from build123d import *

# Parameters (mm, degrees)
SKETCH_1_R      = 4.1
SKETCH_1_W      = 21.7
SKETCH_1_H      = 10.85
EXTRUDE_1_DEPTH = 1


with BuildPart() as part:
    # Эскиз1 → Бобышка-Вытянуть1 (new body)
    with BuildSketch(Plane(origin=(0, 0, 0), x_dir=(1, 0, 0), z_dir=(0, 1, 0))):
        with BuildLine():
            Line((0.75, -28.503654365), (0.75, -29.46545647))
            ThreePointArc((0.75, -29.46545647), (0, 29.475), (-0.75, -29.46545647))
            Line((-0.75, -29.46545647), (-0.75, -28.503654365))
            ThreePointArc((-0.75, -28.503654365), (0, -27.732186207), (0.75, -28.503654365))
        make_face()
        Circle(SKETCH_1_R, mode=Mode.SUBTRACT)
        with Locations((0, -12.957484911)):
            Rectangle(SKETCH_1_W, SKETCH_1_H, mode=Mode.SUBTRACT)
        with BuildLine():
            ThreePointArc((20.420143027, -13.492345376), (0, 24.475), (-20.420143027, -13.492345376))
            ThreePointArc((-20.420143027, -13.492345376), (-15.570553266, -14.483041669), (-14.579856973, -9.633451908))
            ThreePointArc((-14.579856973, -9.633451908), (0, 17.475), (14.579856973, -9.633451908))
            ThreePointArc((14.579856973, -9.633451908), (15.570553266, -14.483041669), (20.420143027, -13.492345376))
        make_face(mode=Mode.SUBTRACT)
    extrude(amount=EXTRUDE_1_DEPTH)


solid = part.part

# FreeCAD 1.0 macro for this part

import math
import FreeCAD as App
import Part
import Sketcher

doc = App.newDocument("Part")
body = doc.addObject("PartDesign::Body", "Body")

# Sketch on XZ plane
sketch1 = body.newObject("Sketcher::SketchObject", "Sketch")
sketch1.AttachmentSupport = (doc.getObject("XZ_Plane"), [""])
sketch1.MapMode = "FlatFace"
sketch1.addGeometry([
    Part.LineSegment(App.Vector(0.8, 28.5, 0), App.Vector(0.8, 29.5, 0)),  # 0
    Part.ArcOfCircle(Part.Circle(App.Vector(0, 0, 0), App.Vector(0, 0, 1), 29.5), math.radians(91), math.radians(449)),  # 1
    Part.LineSegment(App.Vector(-0.8, 29.5, 0), App.Vector(-0.8, 28.5, 0)),  # 2
    Part.ArcOfCircle(Part.Circle(App.Vector(0, 28.5, 0), App.Vector(0, 0, 1), 0.8), math.radians(178), math.radians(362)),  # 3
    Part.LineSegment(App.Vector(10.8, 18.4, 0), App.Vector(-10.8, 18.4, 0)),  # 4
    Part.LineSegment(App.Vector(-10.8, 18.4, 0), App.Vector(-10.8, 7.5, 0)),  # 5
    Part.LineSegment(App.Vector(-10.8, 7.5, 0), App.Vector(10.8, 7.5, 0)),  # 6
    Part.LineSegment(App.Vector(10.8, 7.5, 0), App.Vector(10.8, 18.4, 0)),  # 7
    Part.Circle(App.Vector(0, 0, 0), App.Vector(0, 0, 1), 4.1),  # 8
    Part.ArcOfCircle(Part.Circle(App.Vector(0, 0, 0), App.Vector(0, 0, 1), 24.5), math.radians(147), math.radians(393)),  # 9
    Part.ArcOfCircle(Part.Circle(App.Vector(17.5, 11.6, 0), App.Vector(0, 0, 1), 3.5), math.radians(33), math.radians(213)),  # 10
    Part.ArcOfCircle(Part.Circle(App.Vector(0, 0, 0), App.Vector(0, 0, 1), 17.5), math.radians(147), math.radians(393)),  # 11
    Part.ArcOfCircle(Part.Circle(App.Vector(-17.5, 11.6, 0), App.Vector(0, 0, 1), 3.5), math.radians(-33), math.radians(147)),  # 12
], False)
sketch1.addConstraint([
    Sketcher.Constraint("Coincident", 0, 2, 1, 2),
    Sketcher.Constraint("Coincident", 1, 1, 2, 1),
    Sketcher.Constraint("Coincident", 2, 2, 3, 1),
    Sketcher.Constraint("Coincident", 3, 2, 0, 1),
    Sketcher.Constraint("Coincident", 4, 2, 5, 1),
    Sketcher.Constraint("Coincident", 5, 2, 6, 1),
    Sketcher.Constraint("Coincident", 6, 2, 7, 1),
    Sketcher.Constraint("Coincident", 7, 2, 4, 1),
    Sketcher.Constraint("Tangent", 9, 2, 10, 1),
    Sketcher.Constraint("Tangent", 10, 2, 11, 2),
    Sketcher.Constraint("Tangent", 11, 1, 12, 1),
    Sketcher.Constraint("Tangent", 12, 2, 9, 1),
    Sketcher.Constraint("Vertical", 0),
    Sketcher.Constraint("Vertical", 2),
    Sketcher.Constraint("Horizontal", 4),
    Sketcher.Constraint("Vertical", 5),
    Sketcher.Constraint("Horizontal", 6),
    Sketcher.Constraint("Vertical", 7),
    Sketcher.Constraint("Coincident", 1, 3, -1, 1),
    Sketcher.Constraint("Coincident", 8, 3, -1, 1),
    Sketcher.Constraint("Coincident", 9, 3, -1, 1),
    Sketcher.Constraint("Coincident", 11, 3, -1, 1),
    Sketcher.Constraint("Symmetric", 2, 2, 3, 2, -2),
    Sketcher.Constraint("Horizontal", 10, 3, 12, 3),
    Sketcher.Constraint("Diameter", 8, 8.2),
    Sketcher.Constraint("Radius", 10, 3.5),
    Sketcher.Constraint("DistanceX", 4, 2, 4, 1, 21.7),
    Sketcher.Constraint("Radius", 1, 29.475),
    Sketcher.Constraint("Radius", 9, 24.475),
    Sketcher.Constraint("DistanceY", 5, 2, 5, 1, 10.85),
    Sketcher.Constraint("DistanceX", -1, 1, 10, 3, 17.5),
    Sketcher.Constraint("Radius", 3, 0.750299),
    Sketcher.Constraint("DistanceX", 2, 2, 0, 2, 1.5),
    Sketcher.Constraint("DistanceX", 4, 2, 2, 2, 10.1),
    Sketcher.Constraint("DistanceY", 4, 2, 3, 3, 10.1),
    Sketcher.Constraint("DistanceY", 0, 1, 0, 2, 0.961802),
])
pad1 = body.newObject("PartDesign::Pad", "Pad")
pad1.Profile = sketch1
pad1.Length = 1
pad1.Reversed = True

doc.recompute()
